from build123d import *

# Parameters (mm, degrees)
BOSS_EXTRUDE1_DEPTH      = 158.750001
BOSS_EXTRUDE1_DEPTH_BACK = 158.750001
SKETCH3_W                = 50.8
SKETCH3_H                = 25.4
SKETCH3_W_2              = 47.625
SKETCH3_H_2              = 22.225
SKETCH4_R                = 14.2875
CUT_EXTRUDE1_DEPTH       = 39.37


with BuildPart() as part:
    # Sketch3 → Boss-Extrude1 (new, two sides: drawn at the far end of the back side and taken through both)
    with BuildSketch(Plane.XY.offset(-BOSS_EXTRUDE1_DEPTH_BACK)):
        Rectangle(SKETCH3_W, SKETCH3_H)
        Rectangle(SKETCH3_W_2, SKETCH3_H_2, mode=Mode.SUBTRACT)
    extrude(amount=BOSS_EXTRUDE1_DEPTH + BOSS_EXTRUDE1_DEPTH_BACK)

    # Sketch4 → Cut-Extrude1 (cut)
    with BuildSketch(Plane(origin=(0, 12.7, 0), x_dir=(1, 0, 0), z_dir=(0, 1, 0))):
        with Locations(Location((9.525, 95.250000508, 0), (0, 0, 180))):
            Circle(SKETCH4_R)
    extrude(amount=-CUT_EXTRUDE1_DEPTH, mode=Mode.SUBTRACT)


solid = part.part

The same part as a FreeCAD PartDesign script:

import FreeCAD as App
import Part
import Sketcher
from FreeCAD import Vector
Q = App.Units.Quantity


def add_polygon(sketch, points):
    """Adds a closed chain of lines whose ends are joined by coincident constraints."""
    first, n = sketch.GeometryCount, len(points)
    for a, b in zip(points, points[1:] + points[:1]):
        sketch.addGeometry(Part.LineSegment(App.Vector(*a, 0), App.Vector(*b, 0)), False)
    for i in range(n):
        sketch.addConstraint(Sketcher.Constraint("Coincident", first + i, 2, first + (i + 1) % n, 1))

doc = App.newDocument("Part")
params = doc.addObject("Spreadsheet::Sheet", "Params")
for row, (alias, value) in enumerate([
    ("sketch1_width", "2 in"),
    ("sketch1_height", "1 in"),
    ("sketch1_width2", "1.875 in"),
    ("sketch1_height2", "0.875 in"),
    ("pad1_length", "6.25 in"),
    ("pad1_length2", "6.25 in"),
    ("sketch2_diameter", "1.125 in"),
    ("pocket1_length", "1.55 in"),
], start=1):
    params.set(f"A{row}", alias)
    params.set(f"B{row}", "=" + value)
    params.setAlias(f"B{row}", alias)

body = doc.addObject("PartDesign::Body", "Body")

# Sketch on XY plane
sketch1 = doc.addObject("Sketcher::SketchObject", "Sketch")
body.addObject(sketch1)
sketch1.AttachmentSupport = (doc.XY_Plane, [""])
sketch1.MapMode = "FlatFace"
add_polygon(sketch1, [(-25.4, 12.7), (-25.4, -12.7), (25.4, -12.7), (25.4, 12.7)])  # lines 0-3
add_polygon(sketch1, [(23.8125, -11.1125), (-23.8125, -11.1125), (-23.8125, 11.1125), (23.8125, 11.1125)])  # lines 4-7
sketch1.addConstraint(Sketcher.Constraint("Vertical", 0))
sketch1.addConstraint(Sketcher.Constraint("Horizontal", 1))
sketch1.addConstraint(Sketcher.Constraint("Vertical", 2))
sketch1.addConstraint(Sketcher.Constraint("Horizontal", 3))
sketch1.addConstraint(Sketcher.Constraint("Horizontal", 4))
sketch1.addConstraint(Sketcher.Constraint("Vertical", 5))
sketch1.addConstraint(Sketcher.Constraint("Horizontal", 6))
sketch1.addConstraint(Sketcher.Constraint("Vertical", 7))
sketch1.addConstraint(Sketcher.Constraint("Symmetric", 0, 2, 2, 2, -1, 1))
sketch1.addConstraint(Sketcher.Constraint("Symmetric", 4, 2, 6, 2, -1, 1))
sketch1.addConstraint(Sketcher.Constraint("DistanceX", 1, 1, 1, 2, Q("2 in")))
sketch1.addConstraint(Sketcher.Constraint("DistanceY", 0, 2, 0, 1, Q("1 in")))
sketch1.addConstraint(Sketcher.Constraint("DistanceX", 4, 2, 4, 1, Q("1.875 in")))
sketch1.addConstraint(Sketcher.Constraint("DistanceY", 5, 1, 5, 2, Q("0.875 in")))
sketch1.setExpression("Constraints[18]", "Params.sketch1_width")
sketch1.setExpression("Constraints[19]", "Params.sketch1_height")
sketch1.setExpression("Constraints[20]", "Params.sketch1_width2")
sketch1.setExpression("Constraints[21]", "Params.sketch1_height2")
pad1 = doc.addObject("PartDesign::Pad", "Pad")
body.addObject(pad1)
pad1.Profile = sketch1
pad1.Type = "TwoLengths"
pad1.setExpression("Length", "Params.pad1_length")
pad1.setExpression("Length2", "Params.pad1_length2")

# Sketch on XZ plane
sketch2 = doc.addObject("Sketcher::SketchObject", "Sketch001")
body.addObject(sketch2)
sketch2.AttachmentSupport = (doc.XZ_Plane, [""])
sketch2.MapMode = "FlatFace"
sketch2.AttachmentOffset = App.Placement(Vector(0, 0, -0.5 * 25.4), App.Rotation())
sketch2.addGeometry(Part.Circle(Vector(9.525, -95.250001, 0), Vector(0, 0, 1), 14.2875), False)
sketch2.addConstraint(Sketcher.Constraint("Diameter", 0, Q("1.125 in")))
sketch2.addConstraint(Sketcher.Constraint("DistanceY", 0, 3, -1, 1, Q("3.75 in")))
sketch2.addConstraint(Sketcher.Constraint("DistanceX", -1, 1, 0, 3, Q("0.375 in")))
sketch2.setExpression("Constraints[0]", "Params.sketch2_diameter")
pocket1 = doc.addObject("PartDesign::Pocket", "Pocket")
body.addObject(pocket1)
pocket1.Profile = sketch2
pocket1.setExpression("Length", "Params.pocket1_length")
pocket1.Reversed = True

doc.recompute()
